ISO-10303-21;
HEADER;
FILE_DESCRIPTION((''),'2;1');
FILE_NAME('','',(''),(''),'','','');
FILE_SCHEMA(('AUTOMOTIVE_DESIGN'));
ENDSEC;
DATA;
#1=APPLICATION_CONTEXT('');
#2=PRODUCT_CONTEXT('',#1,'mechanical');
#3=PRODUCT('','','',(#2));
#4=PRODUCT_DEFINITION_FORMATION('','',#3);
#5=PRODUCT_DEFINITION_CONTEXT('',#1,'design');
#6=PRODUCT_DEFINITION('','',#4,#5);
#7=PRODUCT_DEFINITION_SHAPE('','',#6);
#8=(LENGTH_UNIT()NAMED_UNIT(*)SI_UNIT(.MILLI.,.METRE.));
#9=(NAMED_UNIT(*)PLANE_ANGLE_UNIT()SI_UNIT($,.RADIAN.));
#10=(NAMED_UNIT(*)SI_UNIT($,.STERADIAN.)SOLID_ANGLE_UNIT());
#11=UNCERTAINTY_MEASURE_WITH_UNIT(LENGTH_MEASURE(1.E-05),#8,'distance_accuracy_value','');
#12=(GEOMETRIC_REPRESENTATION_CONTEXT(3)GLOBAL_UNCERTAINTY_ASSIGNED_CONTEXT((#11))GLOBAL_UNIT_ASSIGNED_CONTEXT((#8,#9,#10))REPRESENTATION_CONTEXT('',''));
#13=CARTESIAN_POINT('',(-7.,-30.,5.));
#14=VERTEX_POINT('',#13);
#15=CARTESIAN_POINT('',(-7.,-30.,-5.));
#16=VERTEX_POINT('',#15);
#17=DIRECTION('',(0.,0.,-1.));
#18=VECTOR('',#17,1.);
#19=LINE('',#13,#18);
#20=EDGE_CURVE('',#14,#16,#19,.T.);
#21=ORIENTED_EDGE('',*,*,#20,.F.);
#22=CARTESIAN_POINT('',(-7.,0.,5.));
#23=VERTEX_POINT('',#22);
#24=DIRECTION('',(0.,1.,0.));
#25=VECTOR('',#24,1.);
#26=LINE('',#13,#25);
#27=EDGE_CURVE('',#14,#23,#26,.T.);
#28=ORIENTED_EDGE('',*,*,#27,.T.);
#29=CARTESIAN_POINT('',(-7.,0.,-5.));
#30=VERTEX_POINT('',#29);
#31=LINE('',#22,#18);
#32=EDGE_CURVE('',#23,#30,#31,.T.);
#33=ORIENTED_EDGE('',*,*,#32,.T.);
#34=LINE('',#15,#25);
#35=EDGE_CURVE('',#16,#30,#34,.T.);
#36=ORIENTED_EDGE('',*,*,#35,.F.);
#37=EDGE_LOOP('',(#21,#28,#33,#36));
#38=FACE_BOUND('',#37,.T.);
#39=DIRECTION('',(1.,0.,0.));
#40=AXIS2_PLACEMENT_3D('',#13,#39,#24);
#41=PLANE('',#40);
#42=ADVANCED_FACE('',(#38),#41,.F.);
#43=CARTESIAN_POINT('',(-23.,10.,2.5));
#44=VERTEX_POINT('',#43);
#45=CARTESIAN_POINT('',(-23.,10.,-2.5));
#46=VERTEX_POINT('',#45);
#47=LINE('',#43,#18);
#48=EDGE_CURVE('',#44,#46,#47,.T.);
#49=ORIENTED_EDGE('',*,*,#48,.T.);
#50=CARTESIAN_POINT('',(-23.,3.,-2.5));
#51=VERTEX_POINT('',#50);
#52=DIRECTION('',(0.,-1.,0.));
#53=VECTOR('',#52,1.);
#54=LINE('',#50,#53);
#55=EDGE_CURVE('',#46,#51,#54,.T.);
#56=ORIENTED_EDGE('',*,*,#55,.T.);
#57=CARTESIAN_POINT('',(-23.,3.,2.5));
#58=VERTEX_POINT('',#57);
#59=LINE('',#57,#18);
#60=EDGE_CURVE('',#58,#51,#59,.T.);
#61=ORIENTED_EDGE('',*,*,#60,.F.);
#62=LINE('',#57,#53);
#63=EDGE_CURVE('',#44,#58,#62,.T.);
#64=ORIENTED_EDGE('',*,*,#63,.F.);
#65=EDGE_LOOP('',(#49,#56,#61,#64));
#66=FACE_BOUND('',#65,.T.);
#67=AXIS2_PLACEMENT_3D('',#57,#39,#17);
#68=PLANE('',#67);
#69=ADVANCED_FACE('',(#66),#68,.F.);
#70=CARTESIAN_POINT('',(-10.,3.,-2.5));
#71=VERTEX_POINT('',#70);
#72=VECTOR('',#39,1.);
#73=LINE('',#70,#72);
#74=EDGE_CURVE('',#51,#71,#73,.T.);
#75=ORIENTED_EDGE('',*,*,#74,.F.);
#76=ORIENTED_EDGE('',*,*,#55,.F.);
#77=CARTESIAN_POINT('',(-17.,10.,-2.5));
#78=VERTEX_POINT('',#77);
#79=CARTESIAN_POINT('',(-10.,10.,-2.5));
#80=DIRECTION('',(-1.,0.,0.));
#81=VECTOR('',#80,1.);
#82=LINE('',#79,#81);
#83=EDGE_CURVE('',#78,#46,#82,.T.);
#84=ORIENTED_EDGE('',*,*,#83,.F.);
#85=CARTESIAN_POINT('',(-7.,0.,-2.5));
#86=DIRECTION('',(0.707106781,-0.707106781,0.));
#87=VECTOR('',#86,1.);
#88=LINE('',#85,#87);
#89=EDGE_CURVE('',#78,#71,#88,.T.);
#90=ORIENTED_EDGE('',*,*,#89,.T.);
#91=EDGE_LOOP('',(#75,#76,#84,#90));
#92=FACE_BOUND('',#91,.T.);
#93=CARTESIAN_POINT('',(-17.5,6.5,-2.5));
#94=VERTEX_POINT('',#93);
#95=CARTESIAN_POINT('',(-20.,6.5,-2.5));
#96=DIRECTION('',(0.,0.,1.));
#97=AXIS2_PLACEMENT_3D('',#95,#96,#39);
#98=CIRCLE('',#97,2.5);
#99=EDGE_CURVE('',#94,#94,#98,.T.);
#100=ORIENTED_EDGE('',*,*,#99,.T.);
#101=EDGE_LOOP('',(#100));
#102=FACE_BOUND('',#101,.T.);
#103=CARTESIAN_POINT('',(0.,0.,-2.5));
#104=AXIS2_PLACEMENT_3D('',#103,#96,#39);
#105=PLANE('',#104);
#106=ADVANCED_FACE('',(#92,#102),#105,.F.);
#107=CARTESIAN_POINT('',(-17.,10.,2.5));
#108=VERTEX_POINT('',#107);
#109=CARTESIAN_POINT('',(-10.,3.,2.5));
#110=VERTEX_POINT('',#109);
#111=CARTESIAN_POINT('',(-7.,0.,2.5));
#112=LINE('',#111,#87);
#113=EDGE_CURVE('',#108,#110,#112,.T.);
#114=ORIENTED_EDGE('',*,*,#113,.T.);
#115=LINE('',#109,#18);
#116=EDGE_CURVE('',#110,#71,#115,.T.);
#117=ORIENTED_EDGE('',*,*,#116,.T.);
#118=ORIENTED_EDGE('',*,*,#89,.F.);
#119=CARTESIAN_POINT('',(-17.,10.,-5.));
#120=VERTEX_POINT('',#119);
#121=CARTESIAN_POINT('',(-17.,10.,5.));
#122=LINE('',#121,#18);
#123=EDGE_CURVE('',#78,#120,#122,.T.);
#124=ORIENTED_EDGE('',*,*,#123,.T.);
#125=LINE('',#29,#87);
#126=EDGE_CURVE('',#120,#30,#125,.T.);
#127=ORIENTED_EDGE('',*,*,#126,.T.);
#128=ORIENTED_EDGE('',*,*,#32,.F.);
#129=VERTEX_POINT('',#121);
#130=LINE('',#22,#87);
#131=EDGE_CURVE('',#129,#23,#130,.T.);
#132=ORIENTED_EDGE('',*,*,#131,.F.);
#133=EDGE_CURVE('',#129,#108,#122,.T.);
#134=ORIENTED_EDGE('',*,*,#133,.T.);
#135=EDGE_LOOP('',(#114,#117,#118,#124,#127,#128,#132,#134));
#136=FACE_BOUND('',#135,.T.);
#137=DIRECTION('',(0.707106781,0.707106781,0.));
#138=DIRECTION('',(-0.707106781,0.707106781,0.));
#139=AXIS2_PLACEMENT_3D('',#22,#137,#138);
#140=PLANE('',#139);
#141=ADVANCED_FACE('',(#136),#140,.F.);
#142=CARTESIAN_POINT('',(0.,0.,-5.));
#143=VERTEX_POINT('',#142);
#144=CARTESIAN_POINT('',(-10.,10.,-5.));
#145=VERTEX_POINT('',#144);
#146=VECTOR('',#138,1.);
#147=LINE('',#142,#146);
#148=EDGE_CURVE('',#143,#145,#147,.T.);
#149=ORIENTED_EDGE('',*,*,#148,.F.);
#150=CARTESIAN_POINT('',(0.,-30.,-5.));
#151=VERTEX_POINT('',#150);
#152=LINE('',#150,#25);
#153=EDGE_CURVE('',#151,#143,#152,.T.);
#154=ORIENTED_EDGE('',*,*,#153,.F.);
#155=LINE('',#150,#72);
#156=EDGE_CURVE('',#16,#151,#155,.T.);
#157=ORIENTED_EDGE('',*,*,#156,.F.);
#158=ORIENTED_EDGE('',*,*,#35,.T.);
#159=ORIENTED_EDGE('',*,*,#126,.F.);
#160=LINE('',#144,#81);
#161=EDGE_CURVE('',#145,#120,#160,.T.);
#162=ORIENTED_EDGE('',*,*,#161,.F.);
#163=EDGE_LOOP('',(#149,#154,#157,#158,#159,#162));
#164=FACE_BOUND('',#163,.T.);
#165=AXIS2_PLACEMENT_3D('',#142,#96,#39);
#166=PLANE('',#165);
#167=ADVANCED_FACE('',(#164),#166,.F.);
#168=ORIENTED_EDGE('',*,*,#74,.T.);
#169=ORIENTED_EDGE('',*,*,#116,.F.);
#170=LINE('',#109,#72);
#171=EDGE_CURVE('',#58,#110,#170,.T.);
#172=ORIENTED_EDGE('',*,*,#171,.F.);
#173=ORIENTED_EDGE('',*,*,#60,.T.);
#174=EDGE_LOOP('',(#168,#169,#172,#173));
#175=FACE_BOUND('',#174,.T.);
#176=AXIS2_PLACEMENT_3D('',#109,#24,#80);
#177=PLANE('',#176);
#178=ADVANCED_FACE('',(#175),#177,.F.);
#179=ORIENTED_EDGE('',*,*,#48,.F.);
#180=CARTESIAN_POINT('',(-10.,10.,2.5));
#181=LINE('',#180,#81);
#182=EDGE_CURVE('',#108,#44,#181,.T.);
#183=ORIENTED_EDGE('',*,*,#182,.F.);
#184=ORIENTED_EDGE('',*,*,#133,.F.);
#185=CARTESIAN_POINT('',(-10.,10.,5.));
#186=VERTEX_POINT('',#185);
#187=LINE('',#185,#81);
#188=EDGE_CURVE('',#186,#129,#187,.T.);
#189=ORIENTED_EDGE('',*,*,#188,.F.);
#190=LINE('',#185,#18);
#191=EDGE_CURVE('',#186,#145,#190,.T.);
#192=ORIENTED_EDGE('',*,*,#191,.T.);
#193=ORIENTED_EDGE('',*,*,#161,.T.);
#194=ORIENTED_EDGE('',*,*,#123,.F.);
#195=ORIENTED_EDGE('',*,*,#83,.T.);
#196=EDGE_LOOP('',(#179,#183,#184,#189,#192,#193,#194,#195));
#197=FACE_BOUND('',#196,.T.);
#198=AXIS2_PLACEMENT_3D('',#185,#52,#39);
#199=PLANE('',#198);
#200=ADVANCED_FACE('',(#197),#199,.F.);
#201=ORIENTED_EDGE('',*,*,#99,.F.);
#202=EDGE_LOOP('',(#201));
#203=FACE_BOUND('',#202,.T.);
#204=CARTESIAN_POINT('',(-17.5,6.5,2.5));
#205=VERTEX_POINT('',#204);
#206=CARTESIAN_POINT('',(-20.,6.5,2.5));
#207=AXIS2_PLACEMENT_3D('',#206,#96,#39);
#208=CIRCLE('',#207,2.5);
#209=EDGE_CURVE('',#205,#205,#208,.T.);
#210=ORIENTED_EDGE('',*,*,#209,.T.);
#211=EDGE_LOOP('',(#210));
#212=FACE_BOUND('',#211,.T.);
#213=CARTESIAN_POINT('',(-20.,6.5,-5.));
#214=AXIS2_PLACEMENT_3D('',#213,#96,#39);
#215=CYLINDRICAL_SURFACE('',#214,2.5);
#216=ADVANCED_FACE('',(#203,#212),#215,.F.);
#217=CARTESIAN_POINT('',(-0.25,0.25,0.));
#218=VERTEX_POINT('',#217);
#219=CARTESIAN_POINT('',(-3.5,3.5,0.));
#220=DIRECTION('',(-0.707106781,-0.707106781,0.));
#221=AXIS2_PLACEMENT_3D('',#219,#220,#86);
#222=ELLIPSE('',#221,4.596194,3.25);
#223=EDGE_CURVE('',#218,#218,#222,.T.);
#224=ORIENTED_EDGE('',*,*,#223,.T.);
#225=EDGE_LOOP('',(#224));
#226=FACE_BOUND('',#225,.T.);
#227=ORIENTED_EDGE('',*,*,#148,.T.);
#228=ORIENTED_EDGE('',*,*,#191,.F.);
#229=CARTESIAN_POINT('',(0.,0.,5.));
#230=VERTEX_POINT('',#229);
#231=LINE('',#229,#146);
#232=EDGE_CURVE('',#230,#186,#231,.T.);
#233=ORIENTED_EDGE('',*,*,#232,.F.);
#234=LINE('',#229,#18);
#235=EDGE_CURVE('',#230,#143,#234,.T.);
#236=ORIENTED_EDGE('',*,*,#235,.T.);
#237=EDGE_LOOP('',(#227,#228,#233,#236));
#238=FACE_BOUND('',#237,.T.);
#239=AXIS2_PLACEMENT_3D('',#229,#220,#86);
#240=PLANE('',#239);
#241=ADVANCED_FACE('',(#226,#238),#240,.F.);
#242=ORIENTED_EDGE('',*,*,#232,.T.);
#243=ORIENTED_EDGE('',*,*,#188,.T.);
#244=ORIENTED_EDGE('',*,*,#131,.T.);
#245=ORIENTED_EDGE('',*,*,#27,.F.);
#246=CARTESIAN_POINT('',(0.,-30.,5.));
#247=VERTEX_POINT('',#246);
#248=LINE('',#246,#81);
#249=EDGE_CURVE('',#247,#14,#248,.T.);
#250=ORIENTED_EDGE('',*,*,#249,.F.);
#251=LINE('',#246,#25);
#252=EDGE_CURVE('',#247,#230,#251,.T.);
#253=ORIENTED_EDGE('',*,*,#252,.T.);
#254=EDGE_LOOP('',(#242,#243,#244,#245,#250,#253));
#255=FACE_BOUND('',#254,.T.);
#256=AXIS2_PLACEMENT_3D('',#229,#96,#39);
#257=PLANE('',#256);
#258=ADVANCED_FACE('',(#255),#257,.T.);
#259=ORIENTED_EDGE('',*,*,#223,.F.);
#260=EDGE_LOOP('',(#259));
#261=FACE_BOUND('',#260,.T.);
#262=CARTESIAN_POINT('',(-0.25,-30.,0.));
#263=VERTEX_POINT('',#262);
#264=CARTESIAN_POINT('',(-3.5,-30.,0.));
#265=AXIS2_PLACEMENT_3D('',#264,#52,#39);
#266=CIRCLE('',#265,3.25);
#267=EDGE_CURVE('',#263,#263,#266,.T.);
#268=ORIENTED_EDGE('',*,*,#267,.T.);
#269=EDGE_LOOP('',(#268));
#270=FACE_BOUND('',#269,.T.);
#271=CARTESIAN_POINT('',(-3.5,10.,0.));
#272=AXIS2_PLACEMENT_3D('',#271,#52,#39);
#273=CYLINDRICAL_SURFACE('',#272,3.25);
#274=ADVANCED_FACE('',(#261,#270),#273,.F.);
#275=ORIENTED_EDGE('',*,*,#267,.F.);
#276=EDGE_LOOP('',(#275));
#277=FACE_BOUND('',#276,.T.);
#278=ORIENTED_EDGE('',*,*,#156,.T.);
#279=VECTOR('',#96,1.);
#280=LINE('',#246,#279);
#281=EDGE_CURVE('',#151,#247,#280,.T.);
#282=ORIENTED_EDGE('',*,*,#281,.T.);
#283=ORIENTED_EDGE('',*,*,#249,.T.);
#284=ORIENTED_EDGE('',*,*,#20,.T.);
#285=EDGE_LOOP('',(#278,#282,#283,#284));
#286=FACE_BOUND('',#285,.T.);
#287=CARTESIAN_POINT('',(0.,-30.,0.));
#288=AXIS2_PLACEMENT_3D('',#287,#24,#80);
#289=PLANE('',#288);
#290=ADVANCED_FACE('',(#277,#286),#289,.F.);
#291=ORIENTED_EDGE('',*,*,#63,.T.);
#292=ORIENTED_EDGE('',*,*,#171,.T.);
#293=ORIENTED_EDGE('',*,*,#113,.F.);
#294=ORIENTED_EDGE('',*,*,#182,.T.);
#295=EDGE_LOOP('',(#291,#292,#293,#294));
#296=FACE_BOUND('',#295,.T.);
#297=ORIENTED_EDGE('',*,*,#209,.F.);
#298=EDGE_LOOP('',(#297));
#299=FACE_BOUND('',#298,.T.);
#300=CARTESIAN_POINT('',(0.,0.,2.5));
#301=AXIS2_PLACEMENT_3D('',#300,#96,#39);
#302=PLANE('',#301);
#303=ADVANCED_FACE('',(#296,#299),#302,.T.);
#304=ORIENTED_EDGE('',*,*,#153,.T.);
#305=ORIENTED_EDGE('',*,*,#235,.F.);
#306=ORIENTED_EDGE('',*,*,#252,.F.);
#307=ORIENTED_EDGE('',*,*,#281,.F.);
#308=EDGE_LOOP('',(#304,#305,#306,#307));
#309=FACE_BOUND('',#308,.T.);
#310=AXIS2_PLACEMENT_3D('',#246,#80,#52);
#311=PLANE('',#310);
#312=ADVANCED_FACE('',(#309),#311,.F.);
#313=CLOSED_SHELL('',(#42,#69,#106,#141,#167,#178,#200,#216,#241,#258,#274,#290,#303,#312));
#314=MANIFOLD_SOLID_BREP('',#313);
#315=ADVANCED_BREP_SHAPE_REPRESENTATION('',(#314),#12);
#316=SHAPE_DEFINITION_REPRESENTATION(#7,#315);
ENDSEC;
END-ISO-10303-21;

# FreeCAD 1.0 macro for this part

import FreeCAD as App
import Part
import Sketcher
Q = App.Units.Quantity

doc = App.newDocument("Part")
body = doc.addObject("PartDesign::Body", "Body")

# Sketch on XY plane
sketch1 = doc.addObject("Sketcher::SketchObject", "Sketch")
body.addObject(sketch1)
sketch1.AttachmentSupport = (doc.XY_Plane, [""])
sketch1.MapMode = "FlatFace"
sketch1.addGeometry([
    Part.LineSegment(App.Vector(-7, 0, 0), App.Vector(0, 0, 0)),
    Part.LineSegment(App.Vector(0, 0, 0), App.Vector(-10, 10, 0)),
    Part.LineSegment(App.Vector(-10, 10, 0), App.Vector(-17, 10, 0)),
    Part.LineSegment(App.Vector(-17, 10, 0), App.Vector(-7, 0, 0)),
], False)
sketch1.addConstraint([
    Sketcher.Constraint("Coincident", 0, 2, 1, 1),
    Sketcher.Constraint("Coincident", 1, 2, 2, 1),
    Sketcher.Constraint("Coincident", 2, 2, 3, 1),
    Sketcher.Constraint("Coincident", 3, 2, 0, 1),
    Sketcher.Constraint("Horizontal", 0),
    Sketcher.Constraint("Horizontal", 2),
    Sketcher.Constraint("Coincident", 0, 2, -1, 1),
    Sketcher.Constraint("Parallel", 1, 3),
    Sketcher.Constraint("DistanceX", 0, 1, 0, 2, 7.0),
    Sketcher.Constraint("Angle", 1, Q("135 deg")),
    Sketcher.Constraint("DistanceX", 1, 2, -1, 1, 10.0),
])
pad1 = doc.addObject("PartDesign::Pad", "Pad")
body.addObject(pad1)
pad1.Profile = sketch1
pad1.Length = 10
pad1.Midplane = True

# Sketch on XZ plane
sketch2 = doc.addObject("Sketcher::SketchObject", "Sketch001")
body.addObject(sketch2)
sketch2.AttachmentSupport = (doc.XZ_Plane, [""])
sketch2.MapMode = "FlatFace"
sketch2.addGeometry(Part.Circle(App.Vector(-3.5, 0, 0), App.Vector(0, 0, 1), 3.2), False)
sketch2.addConstraint([
    Sketcher.Constraint("PointOnObject", 0, 3, -1),
    Sketcher.Constraint("Diameter", 0, 6.5),
    Sketcher.Constraint("DistanceX", 0, 3, -1, 1, 3.5),
])
pocket1 = doc.addObject("PartDesign::Pocket", "Pocket")
body.addObject(pocket1)
pocket1.Profile = sketch2
pocket1.Type = "ThroughAll"

# Sketch on XY plane
sketch3 = doc.addObject("Sketcher::SketchObject", "Sketch002")
body.addObject(sketch3)
sketch3.AttachmentSupport = (doc.XY_Plane, [""])
sketch3.MapMode = "FlatFace"
sketch3.addGeometry([
    Part.LineSegment(App.Vector(-23, 10, 0), App.Vector(-23, 3, 0)),
    Part.LineSegment(App.Vector(-23, 3, 0), App.Vector(-10, 3, 0)),
    Part.LineSegment(App.Vector(-10, 3, 0), App.Vector(-10, 10, 0)),
    Part.LineSegment(App.Vector(-10, 10, 0), App.Vector(-23, 10, 0)),
], False)
sketch3.addConstraint([
    Sketcher.Constraint("Coincident", 0, 2, 1, 1),
    Sketcher.Constraint("Coincident", 1, 2, 2, 1),
    Sketcher.Constraint("Coincident", 2, 2, 3, 1),
    Sketcher.Constraint("Coincident", 3, 2, 0, 1),
    Sketcher.Constraint("Vertical", 0),
    Sketcher.Constraint("Horizontal", 1),
    Sketcher.Constraint("Vertical", 2),
    Sketcher.Constraint("Horizontal", 3),
    Sketcher.Constraint("DistanceX", 1, 1, 1, 2, 13.0),
    Sketcher.Constraint("DistanceY", 0, 2, 0, 1, 7.0),
    Sketcher.Constraint("DistanceX", 0, 2, -1, 1, 23.0),
    Sketcher.Constraint("DistanceY", -1, 1, 0, 2, 3.0),
])
pad2 = doc.addObject("PartDesign::Pad", "Pad001")
body.addObject(pad2)
pad2.Profile = sketch3
pad2.Length = 5
pad2.Midplane = True

# Sketch on XY plane
sketch4 = doc.addObject("Sketcher::SketchObject", "Sketch003")
body.addObject(sketch4)
sketch4.AttachmentSupport = (doc.XY_Plane, [""])
sketch4.MapMode = "FlatFace"
sketch4.AttachmentOffset = App.Placement(App.Vector(0, 0, 2.5), App.Rotation())
sketch4.addGeometry(Part.Circle(App.Vector(-20, 6.5, 0), App.Vector(0, 0, 1), 2.5), False)
sketch4.addConstraint([
    Sketcher.Constraint("Diameter", 0, 5.0),
    Sketcher.Constraint("DistanceX", 0, 3, -1, 1, 20.0),
    Sketcher.Constraint("DistanceY", -1, 1, 0, 3, 6.5),
])
pocket2 = doc.addObject("PartDesign::Pocket", "Pocket001")
body.addObject(pocket2)
pocket2.Profile = sketch4
pocket2.Type = "ThroughAll"

# Sketch on XZ plane
sketch5 = doc.addObject("Sketcher::SketchObject", "Sketch004")
body.addObject(sketch5)
sketch5.AttachmentSupport = (doc.XZ_Plane, [""])
sketch5.MapMode = "FlatFace"
sketch5.addGeometry([
    Part.LineSegment(App.Vector(-7, 5, 0), App.Vector(-7, -5, 0)),  # 0
    Part.LineSegment(App.Vector(-7, -5, 0), App.Vector(0, -5, 0)),  # 1
    Part.LineSegment(App.Vector(0, -5, 0), App.Vector(0, 5, 0)),  # 2
    Part.LineSegment(App.Vector(0, 5, 0), App.Vector(-7, 5, 0)),  # 3
    Part.Circle(App.Vector(-3.5, 0, 0), App.Vector(0, 0, 1), 3.2),  # 4
], False)
sketch5.addConstraint([
    Sketcher.Constraint("Coincident", 0, 2, 1, 1),
    Sketcher.Constraint("Coincident", 1, 2, 2, 1),
    Sketcher.Constraint("Coincident", 2, 2, 3, 1),
    Sketcher.Constraint("Coincident", 3, 2, 0, 1),
    Sketcher.Constraint("Vertical", 0),
    Sketcher.Constraint("Horizontal", 1),
    Sketcher.Constraint("Vertical", 2),
    Sketcher.Constraint("Horizontal", 3),
    Sketcher.Constraint("Symmetric", 1, 2, 2, 2, -1, 1),
    Sketcher.Constraint("PointOnObject", 4, 3, -1),
    Sketcher.Constraint("Diameter", 4, 6.5),
    Sketcher.Constraint("DistanceX", 1, 1, 1, 2, 7.0),
    Sketcher.Constraint("DistanceY", 0, 2, 0, 1, 10.0),
    Sketcher.Constraint("DistanceX", 4, 3, -1, 1, 3.5),
])
pad3 = doc.addObject("PartDesign::Pad", "Pad002")
body.addObject(pad3)
pad3.Profile = sketch5
pad3.Length = 30

doc.recompute()
